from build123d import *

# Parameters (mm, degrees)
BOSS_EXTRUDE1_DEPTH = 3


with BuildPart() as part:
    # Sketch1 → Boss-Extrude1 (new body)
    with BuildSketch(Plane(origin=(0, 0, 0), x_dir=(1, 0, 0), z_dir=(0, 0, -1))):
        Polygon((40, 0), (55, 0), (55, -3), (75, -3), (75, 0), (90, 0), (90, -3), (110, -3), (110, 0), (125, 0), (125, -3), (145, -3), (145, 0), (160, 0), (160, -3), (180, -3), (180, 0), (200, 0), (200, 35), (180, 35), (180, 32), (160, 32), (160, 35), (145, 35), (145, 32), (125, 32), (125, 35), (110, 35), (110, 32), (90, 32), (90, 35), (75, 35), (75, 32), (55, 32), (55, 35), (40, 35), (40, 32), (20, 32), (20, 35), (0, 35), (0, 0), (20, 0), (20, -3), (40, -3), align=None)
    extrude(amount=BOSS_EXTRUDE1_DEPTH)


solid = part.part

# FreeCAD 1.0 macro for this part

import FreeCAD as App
import Part
import Sketcher

doc = App.newDocument("Part")
params = doc.addObject("Spreadsheet::Sheet", "Params")
for row, (alias, value) in enumerate([
    ("sketch1_width", "15 mm"),
    ("sketch1_width2", "20 mm"),
    ("sketch1_height", "3 mm"),
    ("sketch1_height2", "35 mm"),
    ("pad1_length", "3 mm"),
], start=1):
    params.set(f"A{row}", alias)
    params.set(f"B{row}", "=" + value)
    params.setAlias(f"B{row}", alias)

body = doc.addObject("PartDesign::Body", "Body")

# Sketch on XY plane
sketch1 = body.newObject("Sketcher::SketchObject", "Sketch")
sketch1.AttachmentSupport = (doc.getObject("XY_Plane"), [""])
sketch1.MapMode = "FlatFace"
sketch1.addGeometry([
    Part.LineSegment(App.Vector(40, 0, 0), App.Vector(55, 0, 0)),  # 0
    Part.LineSegment(App.Vector(55, 0, 0), App.Vector(55, 3, 0)),  # 1
    Part.LineSegment(App.Vector(55, 3, 0), App.Vector(75, 3, 0)),  # 2
    Part.LineSegment(App.Vector(75, 3, 0), App.Vector(75, 0, 0)),  # 3
    Part.LineSegment(App.Vector(75, 0, 0), App.Vector(90, 0, 0)),  # 4
    Part.LineSegment(App.Vector(90, 0, 0), App.Vector(90, 3, 0)),  # 5
    Part.LineSegment(App.Vector(90, 3, 0), App.Vector(110, 3, 0)),  # 6
    Part.LineSegment(App.Vector(110, 3, 0), App.Vector(110, 0, 0)),  # 7
    Part.LineSegment(App.Vector(110, 0, 0), App.Vector(125, 0, 0)),  # 8
    Part.LineSegment(App.Vector(125, 0, 0), App.Vector(125, 3, 0)),  # 9
    Part.LineSegment(App.Vector(125, 3, 0), App.Vector(145, 3, 0)),  # 10
    Part.LineSegment(App.Vector(145, 3, 0), App.Vector(145, 0, 0)),  # 11
    Part.LineSegment(App.Vector(145, 0, 0), App.Vector(160, 0, 0)),  # 12
    Part.LineSegment(App.Vector(160, 0, 0), App.Vector(160, 3, 0)),  # 13
    Part.LineSegment(App.Vector(160, 3, 0), App.Vector(180, 3, 0)),  # 14
    Part.LineSegment(App.Vector(180, 3, 0), App.Vector(180, 0, 0)),  # 15
    Part.LineSegment(App.Vector(180, 0, 0), App.Vector(200, 0, 0)),  # 16
    Part.LineSegment(App.Vector(200, 0, 0), App.Vector(200, -35, 0)),  # 17
    Part.LineSegment(App.Vector(200, -35, 0), App.Vector(180, -35, 0)),  # 18
    Part.LineSegment(App.Vector(180, -35, 0), App.Vector(180, -32, 0)),  # 19
    Part.LineSegment(App.Vector(180, -32, 0), App.Vector(160, -32, 0)),  # 20
    Part.LineSegment(App.Vector(160, -32, 0), App.Vector(160, -35, 0)),  # 21
    Part.LineSegment(App.Vector(160, -35, 0), App.Vector(145, -35, 0)),  # 22
    Part.LineSegment(App.Vector(145, -35, 0), App.Vector(145, -32, 0)),  # 23
    Part.LineSegment(App.Vector(145, -32, 0), App.Vector(125, -32, 0)),  # 24
    Part.LineSegment(App.Vector(125, -32, 0), App.Vector(125, -35, 0)),  # 25
    Part.LineSegment(App.Vector(125, -35, 0), App.Vector(110, -35, 0)),  # 26
    Part.LineSegment(App.Vector(110, -35, 0), App.Vector(110, -32, 0)),  # 27
    Part.LineSegment(App.Vector(110, -32, 0), App.Vector(90, -32, 0)),  # 28
    Part.LineSegment(App.Vector(90, -32, 0), App.Vector(90, -35, 0)),  # 29
    Part.LineSegment(App.Vector(90, -35, 0), App.Vector(75, -35, 0)),  # 30
    Part.LineSegment(App.Vector(75, -35, 0), App.Vector(75, -32, 0)),  # 31
    Part.LineSegment(App.Vector(75, -32, 0), App.Vector(55, -32, 0)),  # 32
    Part.LineSegment(App.Vector(55, -32, 0), App.Vector(55, -35, 0)),  # 33
    Part.LineSegment(App.Vector(55, -35, 0), App.Vector(40, -35, 0)),  # 34
    Part.LineSegment(App.Vector(40, -35, 0), App.Vector(40, -32, 0)),  # 35
    Part.LineSegment(App.Vector(40, -32, 0), App.Vector(20, -32, 0)),  # 36
    Part.LineSegment(App.Vector(20, -32, 0), App.Vector(20, -35, 0)),  # 37
    Part.LineSegment(App.Vector(20, -35, 0), App.Vector(0, -35, 0)),  # 38
    Part.LineSegment(App.Vector(0, -35, 0), App.Vector(0, 0, 0)),  # 39
    Part.LineSegment(App.Vector(0, 0, 0), App.Vector(20, 0, 0)),  # 40
    Part.LineSegment(App.Vector(20, 0, 0), App.Vector(20, 3, 0)),  # 41
    Part.LineSegment(App.Vector(20, 3, 0), App.Vector(40, 3, 0)),  # 42
    Part.LineSegment(App.Vector(40, 3, 0), App.Vector(40, 0, 0)),  # 43
], False)
sketch1.addConstraint([
    Sketcher.Constraint("Coincident", 0, 2, 1, 1),
    Sketcher.Constraint("Coincident", 1, 2, 2, 1),
    Sketcher.Constraint("Coincident", 2, 2, 3, 1),
    Sketcher.Constraint("Coincident", 3, 2, 4, 1),
    Sketcher.Constraint("Coincident", 4, 2, 5, 1),
    Sketcher.Constraint("Coincident", 5, 2, 6, 1),
    Sketcher.Constraint("Coincident", 6, 2, 7, 1),
    Sketcher.Constraint("Coincident", 7, 2, 8, 1),
    Sketcher.Constraint("Coincident", 8, 2, 9, 1),
    Sketcher.Constraint("Coincident", 9, 2, 10, 1),
    Sketcher.Constraint("Coincident", 10, 2, 11, 1),
    Sketcher.Constraint("Coincident", 11, 2, 12, 1),
    Sketcher.Constraint("Coincident", 12, 2, 13, 1),
    Sketcher.Constraint("Coincident", 13, 2, 14, 1),
    Sketcher.Constraint("Coincident", 14, 2, 15, 1),
    Sketcher.Constraint("Coincident", 15, 2, 16, 1),
    Sketcher.Constraint("Coincident", 16, 2, 17, 1),
    Sketcher.Constraint("Coincident", 17, 2, 18, 1),
    Sketcher.Constraint("Coincident", 18, 2, 19, 1),
    Sketcher.Constraint("Coincident", 19, 2, 20, 1),
    Sketcher.Constraint("Coincident", 20, 2, 21, 1),
    Sketcher.Constraint("Coincident", 21, 2, 22, 1),
    Sketcher.Constraint("Coincident", 22, 2, 23, 1),
    Sketcher.Constraint("Coincident", 23, 2, 24, 1),
    Sketcher.Constraint("Coincident", 24, 2, 25, 1),
    Sketcher.Constraint("Coincident", 25, 2, 26, 1),
    Sketcher.Constraint("Coincident", 26, 2, 27, 1),
    Sketcher.Constraint("Coincident", 27, 2, 28, 1),
    Sketcher.Constraint("Coincident", 28, 2, 29, 1),
    Sketcher.Constraint("Coincident", 29, 2, 30, 1),
    Sketcher.Constraint("Coincident", 30, 2, 31, 1),
    Sketcher.Constraint("Coincident", 31, 2, 32, 1),
    Sketcher.Constraint("Coincident", 32, 2, 33, 1),
    Sketcher.Constraint("Coincident", 33, 2, 34, 1),
    Sketcher.Constraint("Coincident", 34, 2, 35, 1),
    Sketcher.Constraint("Coincident", 35, 2, 36, 1),
    Sketcher.Constraint("Coincident", 36, 2, 37, 1),
    Sketcher.Constraint("Coincident", 37, 2, 38, 1),
    Sketcher.Constraint("Coincident", 38, 2, 39, 1),
    Sketcher.Constraint("Coincident", 39, 2, 40, 1),
    Sketcher.Constraint("Coincident", 40, 2, 41, 1),
    Sketcher.Constraint("Coincident", 41, 2, 42, 1),
    Sketcher.Constraint("Coincident", 42, 2, 43, 1),
    Sketcher.Constraint("Coincident", 43, 2, 0, 1),
    Sketcher.Constraint("Horizontal", 0),
    Sketcher.Constraint("Vertical", 1),
    Sketcher.Constraint("Horizontal", 2),
    Sketcher.Constraint("Vertical", 3),
    Sketcher.Constraint("Horizontal", 4),
    Sketcher.Constraint("Vertical", 5),
    Sketcher.Constraint("Horizontal", 6),
    Sketcher.Constraint("Vertical", 7),
    Sketcher.Constraint("Horizontal", 8),
    Sketcher.Constraint("Vertical", 9),
    Sketcher.Constraint("Horizontal", 10),
    Sketcher.Constraint("Vertical", 11),
    Sketcher.Constraint("Horizontal", 12),
    Sketcher.Constraint("Vertical", 13),
    Sketcher.Constraint("Horizontal", 14),
    Sketcher.Constraint("Vertical", 15),
    Sketcher.Constraint("Horizontal", 16),
    Sketcher.Constraint("Vertical", 17),
    Sketcher.Constraint("Horizontal", 18),
    Sketcher.Constraint("Vertical", 19),
    Sketcher.Constraint("Horizontal", 20),
    Sketcher.Constraint("Vertical", 21),
    Sketcher.Constraint("Horizontal", 22),
    Sketcher.Constraint("Vertical", 23),
    Sketcher.Constraint("Horizontal", 24),
    Sketcher.Constraint("Vertical", 25),
    Sketcher.Constraint("Horizontal", 26),
    Sketcher.Constraint("Vertical", 27),
    Sketcher.Constraint("Horizontal", 28),
    Sketcher.Constraint("Vertical", 29),
    Sketcher.Constraint("Horizontal", 30),
    Sketcher.Constraint("Vertical", 31),
    Sketcher.Constraint("Horizontal", 32),
    Sketcher.Constraint("Vertical", 33),
    Sketcher.Constraint("Horizontal", 34),
    Sketcher.Constraint("Vertical", 35),
    Sketcher.Constraint("Horizontal", 36),
    Sketcher.Constraint("Vertical", 37),
    Sketcher.Constraint("Horizontal", 38),
    Sketcher.Constraint("Vertical", 39),
    Sketcher.Constraint("Horizontal", 40),
    Sketcher.Constraint("Vertical", 41),
    Sketcher.Constraint("Horizontal", 42),
    Sketcher.Constraint("Vertical", 43),
    Sketcher.Constraint("Coincident", 39, 2, -1, 1),
    Sketcher.Constraint("PointOnObject", 0, 2, -1),
    Sketcher.Constraint("PointOnObject", 3, 2, -1),
    Sketcher.Constraint("PointOnObject", 7, 2, -1),
    Sketcher.Constraint("PointOnObject", 11, 2, -1),
    Sketcher.Constraint("PointOnObject", 15, 2, -1),
    Sketcher.Constraint("Horizontal", 2, 2, 5, 2),
    Sketcher.Constraint("Horizontal", 6, 2, 9, 2),
    Sketcher.Constraint("Horizontal", 10, 2, 13, 2),
    Sketcher.Constraint("Horizontal", 18, 2, 21, 2),
    Sketcher.Constraint("Horizontal", 20, 2, 23, 2),
    Sketcher.Constraint("Horizontal", 22, 2, 25, 2),
    Sketcher.Constraint("Horizontal", 24, 2, 27, 2),
    Sketcher.Constraint("Horizontal", 26, 2, 29, 2),
    Sketcher.Constraint("Horizontal", 28, 2, 31, 2),
    Sketcher.Constraint("Horizontal", 30, 2, 33, 2),
    Sketcher.Constraint("Horizontal", 32, 2, 35, 2),
    Sketcher.Constraint("Horizontal", 34, 2, 37, 2),
    Sketcher.Constraint("Horizontal", 14, 2, 41, 2),
    Sketcher.Constraint("Vertical", 15, 2, 18, 2),
    Sketcher.Constraint("Vertical", 13, 2, 20, 2),
    Sketcher.Constraint("Vertical", 11, 2, 22, 2),
    Sketcher.Constraint("Vertical", 9, 2, 24, 2),
    Sketcher.Constraint("Vertical", 7, 2, 26, 2),
    Sketcher.Constraint("Vertical", 5, 2, 28, 2),
    Sketcher.Constraint("Vertical", 3, 2, 30, 2),
    Sketcher.Constraint("Vertical", 1, 2, 32, 2),
    Sketcher.Constraint("Vertical", 37, 2, 40, 2),
    Sketcher.Constraint("Vertical", 35, 2, 42, 2),
    Sketcher.Constraint("Equal", 0, 4),
    Sketcher.Constraint("Equal", 2, 6),
    Sketcher.Constraint("Equal", 4, 8),
    Sketcher.Constraint("Equal", 6, 10),
    Sketcher.Constraint("Equal", 8, 12),
    Sketcher.Constraint("Equal", 10, 14),
    Sketcher.Constraint("Equal", 14, 16),
    Sketcher.Constraint("Equal", 32, 36),
    Sketcher.Constraint("Equal", 36, 38),
    Sketcher.Constraint("Equal", 15, 19),
    Sketcher.Constraint("DistanceX", 0, 1, 0, 2, 15.0),
    Sketcher.Constraint("DistanceX", 2, 1, 2, 2, 20.0),
    Sketcher.Constraint("DistanceY", 1, 1, 1, 2, 3.0),
    Sketcher.Constraint("DistanceY", 17, 2, 17, 1, 35.0),
])
sketch1.setExpression("Constraints[127]", "Params.sketch1_width")
sketch1.setExpression("Constraints[128]", "Params.sketch1_width2")
sketch1.setExpression("Constraints[129]", "Params.sketch1_height")
sketch1.setExpression("Constraints[130]", "Params.sketch1_height2")
pad1 = body.newObject("PartDesign::Pad", "Pad")
pad1.Profile = sketch1
pad1.setExpression("Length", "Params.pad1_length")
pad1.Reversed = True

doc.recompute()
